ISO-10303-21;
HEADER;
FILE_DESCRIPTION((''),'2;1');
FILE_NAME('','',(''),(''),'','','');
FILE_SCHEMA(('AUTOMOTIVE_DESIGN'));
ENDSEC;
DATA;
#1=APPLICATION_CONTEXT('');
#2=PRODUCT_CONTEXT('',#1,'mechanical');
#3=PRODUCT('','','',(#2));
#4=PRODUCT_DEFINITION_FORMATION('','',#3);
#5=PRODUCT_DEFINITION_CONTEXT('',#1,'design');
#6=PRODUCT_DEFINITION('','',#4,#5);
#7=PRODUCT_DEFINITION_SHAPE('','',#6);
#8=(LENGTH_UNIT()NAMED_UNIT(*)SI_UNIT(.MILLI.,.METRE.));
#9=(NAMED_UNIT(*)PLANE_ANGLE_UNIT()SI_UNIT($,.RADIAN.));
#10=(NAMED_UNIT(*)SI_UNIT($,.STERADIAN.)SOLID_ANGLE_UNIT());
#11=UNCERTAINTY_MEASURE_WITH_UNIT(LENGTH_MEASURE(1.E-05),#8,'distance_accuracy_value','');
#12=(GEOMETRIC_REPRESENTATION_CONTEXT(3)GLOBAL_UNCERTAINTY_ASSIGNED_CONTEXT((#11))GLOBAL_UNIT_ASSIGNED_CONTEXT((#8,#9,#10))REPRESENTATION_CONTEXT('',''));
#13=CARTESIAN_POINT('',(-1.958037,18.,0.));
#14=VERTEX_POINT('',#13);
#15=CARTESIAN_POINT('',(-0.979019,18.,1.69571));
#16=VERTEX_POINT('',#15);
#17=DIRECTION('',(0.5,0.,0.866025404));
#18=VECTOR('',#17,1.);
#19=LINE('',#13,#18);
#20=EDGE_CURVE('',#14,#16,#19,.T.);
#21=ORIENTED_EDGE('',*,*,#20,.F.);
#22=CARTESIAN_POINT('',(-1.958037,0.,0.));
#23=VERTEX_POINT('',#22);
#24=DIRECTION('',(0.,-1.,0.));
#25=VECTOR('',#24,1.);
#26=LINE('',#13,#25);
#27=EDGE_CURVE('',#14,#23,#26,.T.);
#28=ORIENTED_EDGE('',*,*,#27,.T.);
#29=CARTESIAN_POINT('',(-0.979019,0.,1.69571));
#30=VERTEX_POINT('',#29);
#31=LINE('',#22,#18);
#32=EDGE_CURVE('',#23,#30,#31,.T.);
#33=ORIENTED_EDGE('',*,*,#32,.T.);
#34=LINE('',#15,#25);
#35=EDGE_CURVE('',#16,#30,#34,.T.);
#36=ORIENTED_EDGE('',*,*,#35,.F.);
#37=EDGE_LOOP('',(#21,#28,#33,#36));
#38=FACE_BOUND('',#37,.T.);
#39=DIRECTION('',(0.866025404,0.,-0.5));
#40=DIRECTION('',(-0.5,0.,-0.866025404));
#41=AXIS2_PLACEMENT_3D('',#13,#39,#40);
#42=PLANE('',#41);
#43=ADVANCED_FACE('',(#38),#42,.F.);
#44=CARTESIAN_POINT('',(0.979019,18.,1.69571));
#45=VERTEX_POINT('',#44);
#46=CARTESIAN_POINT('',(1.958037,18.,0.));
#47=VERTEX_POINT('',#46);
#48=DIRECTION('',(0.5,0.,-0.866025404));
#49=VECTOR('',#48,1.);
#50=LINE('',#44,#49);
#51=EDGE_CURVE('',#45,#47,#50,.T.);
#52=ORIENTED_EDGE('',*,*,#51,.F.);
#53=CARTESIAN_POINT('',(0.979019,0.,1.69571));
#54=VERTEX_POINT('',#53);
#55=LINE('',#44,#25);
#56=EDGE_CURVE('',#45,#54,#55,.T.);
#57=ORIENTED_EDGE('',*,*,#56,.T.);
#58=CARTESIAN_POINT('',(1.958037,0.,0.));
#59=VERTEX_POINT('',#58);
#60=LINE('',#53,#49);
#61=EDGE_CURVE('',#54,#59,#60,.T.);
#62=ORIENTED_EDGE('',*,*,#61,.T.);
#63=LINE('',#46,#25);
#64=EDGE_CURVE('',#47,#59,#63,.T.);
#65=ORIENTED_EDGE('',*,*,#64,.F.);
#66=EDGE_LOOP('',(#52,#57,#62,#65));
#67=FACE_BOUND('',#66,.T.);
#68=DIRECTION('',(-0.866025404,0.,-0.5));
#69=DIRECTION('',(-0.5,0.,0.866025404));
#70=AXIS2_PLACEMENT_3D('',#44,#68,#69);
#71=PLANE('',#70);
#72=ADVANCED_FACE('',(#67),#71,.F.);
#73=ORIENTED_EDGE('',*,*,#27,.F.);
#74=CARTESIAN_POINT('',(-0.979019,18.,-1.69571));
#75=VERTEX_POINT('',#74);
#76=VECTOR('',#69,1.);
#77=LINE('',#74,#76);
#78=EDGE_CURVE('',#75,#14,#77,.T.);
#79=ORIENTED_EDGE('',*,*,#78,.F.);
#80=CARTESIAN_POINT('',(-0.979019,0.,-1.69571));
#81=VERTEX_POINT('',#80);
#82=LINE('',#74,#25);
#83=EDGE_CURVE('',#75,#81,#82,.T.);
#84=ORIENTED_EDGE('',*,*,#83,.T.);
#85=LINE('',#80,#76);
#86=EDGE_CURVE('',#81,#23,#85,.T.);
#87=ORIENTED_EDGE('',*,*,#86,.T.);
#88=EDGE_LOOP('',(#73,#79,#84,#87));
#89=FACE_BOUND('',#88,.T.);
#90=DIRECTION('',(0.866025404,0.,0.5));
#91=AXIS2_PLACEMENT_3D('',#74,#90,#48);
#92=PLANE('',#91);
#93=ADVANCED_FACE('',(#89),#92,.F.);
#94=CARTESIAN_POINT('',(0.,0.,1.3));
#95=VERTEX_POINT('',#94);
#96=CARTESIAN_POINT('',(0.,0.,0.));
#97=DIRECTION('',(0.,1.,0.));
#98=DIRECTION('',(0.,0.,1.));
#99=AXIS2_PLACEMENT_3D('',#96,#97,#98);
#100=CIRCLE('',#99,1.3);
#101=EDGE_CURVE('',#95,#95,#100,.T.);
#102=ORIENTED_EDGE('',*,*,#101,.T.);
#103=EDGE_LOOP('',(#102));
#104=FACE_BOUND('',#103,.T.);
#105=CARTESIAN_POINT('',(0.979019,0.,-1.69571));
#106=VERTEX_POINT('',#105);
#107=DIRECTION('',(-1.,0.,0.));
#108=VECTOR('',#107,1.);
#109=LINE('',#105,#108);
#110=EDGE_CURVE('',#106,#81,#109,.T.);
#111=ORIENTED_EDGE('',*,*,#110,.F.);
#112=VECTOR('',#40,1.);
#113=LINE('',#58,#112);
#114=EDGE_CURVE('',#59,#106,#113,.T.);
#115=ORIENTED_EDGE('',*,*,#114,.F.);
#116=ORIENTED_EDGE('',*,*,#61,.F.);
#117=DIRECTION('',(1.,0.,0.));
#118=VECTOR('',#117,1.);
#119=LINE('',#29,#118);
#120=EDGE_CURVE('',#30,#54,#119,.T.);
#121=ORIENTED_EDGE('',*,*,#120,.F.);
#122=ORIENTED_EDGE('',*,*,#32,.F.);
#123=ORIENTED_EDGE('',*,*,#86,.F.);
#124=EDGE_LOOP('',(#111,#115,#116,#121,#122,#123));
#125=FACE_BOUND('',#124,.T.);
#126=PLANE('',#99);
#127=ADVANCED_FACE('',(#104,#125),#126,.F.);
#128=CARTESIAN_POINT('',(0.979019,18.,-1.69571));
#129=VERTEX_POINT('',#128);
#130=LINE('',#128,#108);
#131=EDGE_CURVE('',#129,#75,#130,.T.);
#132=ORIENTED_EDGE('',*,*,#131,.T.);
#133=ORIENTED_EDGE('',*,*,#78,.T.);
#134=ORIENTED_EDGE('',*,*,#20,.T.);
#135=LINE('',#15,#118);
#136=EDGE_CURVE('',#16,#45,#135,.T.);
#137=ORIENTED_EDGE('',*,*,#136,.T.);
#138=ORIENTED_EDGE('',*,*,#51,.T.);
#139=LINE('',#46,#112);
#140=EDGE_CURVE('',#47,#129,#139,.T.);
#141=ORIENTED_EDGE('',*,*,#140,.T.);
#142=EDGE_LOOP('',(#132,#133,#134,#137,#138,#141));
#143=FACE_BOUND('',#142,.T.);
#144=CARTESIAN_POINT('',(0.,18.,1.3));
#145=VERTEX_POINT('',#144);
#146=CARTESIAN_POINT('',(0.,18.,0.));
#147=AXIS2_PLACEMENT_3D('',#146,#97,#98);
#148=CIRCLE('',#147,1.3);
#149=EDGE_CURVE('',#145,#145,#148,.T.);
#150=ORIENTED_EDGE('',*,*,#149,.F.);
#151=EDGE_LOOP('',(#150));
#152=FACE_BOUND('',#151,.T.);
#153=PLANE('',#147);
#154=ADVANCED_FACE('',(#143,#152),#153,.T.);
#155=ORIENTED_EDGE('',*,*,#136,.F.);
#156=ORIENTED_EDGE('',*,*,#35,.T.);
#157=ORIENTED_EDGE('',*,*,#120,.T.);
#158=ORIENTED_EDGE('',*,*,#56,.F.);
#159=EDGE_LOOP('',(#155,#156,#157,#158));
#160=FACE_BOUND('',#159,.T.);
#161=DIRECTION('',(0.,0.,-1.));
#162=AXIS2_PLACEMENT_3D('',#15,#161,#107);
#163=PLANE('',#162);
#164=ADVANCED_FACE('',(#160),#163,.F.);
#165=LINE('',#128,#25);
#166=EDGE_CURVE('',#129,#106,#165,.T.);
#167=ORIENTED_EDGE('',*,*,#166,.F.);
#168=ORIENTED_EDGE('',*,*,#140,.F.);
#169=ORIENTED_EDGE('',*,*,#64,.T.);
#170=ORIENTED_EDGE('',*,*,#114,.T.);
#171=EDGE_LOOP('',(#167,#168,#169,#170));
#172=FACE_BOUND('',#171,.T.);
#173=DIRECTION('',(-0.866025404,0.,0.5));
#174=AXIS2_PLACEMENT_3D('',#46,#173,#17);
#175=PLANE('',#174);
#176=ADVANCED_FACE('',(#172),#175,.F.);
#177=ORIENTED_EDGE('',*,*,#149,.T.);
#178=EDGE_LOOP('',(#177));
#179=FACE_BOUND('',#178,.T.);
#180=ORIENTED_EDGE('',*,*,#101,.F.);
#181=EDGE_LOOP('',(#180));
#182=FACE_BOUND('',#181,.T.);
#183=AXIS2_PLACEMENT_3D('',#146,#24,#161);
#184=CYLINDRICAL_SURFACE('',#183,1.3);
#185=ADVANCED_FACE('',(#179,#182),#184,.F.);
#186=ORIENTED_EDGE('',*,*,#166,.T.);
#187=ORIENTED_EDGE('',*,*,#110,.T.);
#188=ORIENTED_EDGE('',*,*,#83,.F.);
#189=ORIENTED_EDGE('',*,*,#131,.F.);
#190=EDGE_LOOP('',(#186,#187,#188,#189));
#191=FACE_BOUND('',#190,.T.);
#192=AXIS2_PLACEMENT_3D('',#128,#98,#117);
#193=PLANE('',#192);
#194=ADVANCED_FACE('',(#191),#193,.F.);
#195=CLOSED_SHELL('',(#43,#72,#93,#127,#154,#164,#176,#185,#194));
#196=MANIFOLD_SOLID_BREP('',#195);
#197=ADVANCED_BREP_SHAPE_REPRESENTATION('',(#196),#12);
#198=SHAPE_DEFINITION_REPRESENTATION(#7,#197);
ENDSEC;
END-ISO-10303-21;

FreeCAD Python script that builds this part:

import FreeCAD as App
import Part
import Sketcher
from FreeCAD import Vector
Q = App.Units.Quantity


def add_polygon(sketch, points):
    """Adds a closed chain of lines whose ends are joined by coincident constraints."""
    first, n = sketch.GeometryCount, len(points)
    for a, b in zip(points, points[1:] + points[:1]):
        sketch.addGeometry(Part.LineSegment(App.Vector(*a, 0), App.Vector(*b, 0)), False)
    for i in range(n):
        sketch.addConstraint(Sketcher.Constraint("Coincident", first + i, 2, first + (i + 1) % n, 1))

doc = App.newDocument("Part")
params = doc.addObject("Spreadsheet::Sheet", "Params")
for row, (alias, value) in enumerate([
    ("sketch1_diameter", "2.6 mm"),
    ("pad1_length", "18 mm"),
], start=1):
    params.set(f"A{row}", alias)
    params.set(f"B{row}", "=" + value)
    params.setAlias(f"B{row}", alias)

body = doc.addObject("PartDesign::Body", "Body")

# Sketch on XZ plane
sketch1 = body.newObject("Sketcher::SketchObject", "Sketch")
sketch1.AttachmentSupport = (doc.getObject("XZ_Plane"), [""])
sketch1.MapMode = "FlatFace"
add_polygon(sketch1, [(1, 1.7), (2, 0), (1, -1.7), (-1, -1.7), (-2, 0), (-1, 1.7)])  # lines 0-5
sketch1.addGeometry(Part.Circle(Vector(0, 0, 0), Vector(0, 0, 1), 1.3), False)  # 6
sketch1.addConstraint([
    Sketcher.Constraint("Horizontal", 2),
    Sketcher.Constraint("Horizontal", 5),
    Sketcher.Constraint("Coincident", 6, 3, -1, 1),
    Sketcher.Constraint("Symmetric", 0, 2, 3, 2, -1, 1),
    Sketcher.Constraint("Symmetric", 1, 2, 4, 2, -1, 1),
    Sketcher.Constraint("PointOnObject", 0, 2, -1),
    Sketcher.Constraint("Parallel", 0, 3),
    Sketcher.Constraint("Vertical", 2, 2, 4, 2),
    Sketcher.Constraint("Diameter", 6, Q("2.6 mm")),
    Sketcher.Constraint("Angle", 0, Q("-60 deg")),
    Sketcher.Constraint("DistanceX", 2, 2, 2, 1, Q("1.958037 mm")),
    Sketcher.Constraint("DistanceY", 1, 2, -1, 1, Q("1.69571 mm")),
])
sketch1.setExpression("Constraints[14]", "Params.sketch1_diameter")
pad1 = body.newObject("PartDesign::Pad", "Pad")
pad1.Profile = sketch1
pad1.setExpression("Length", "Params.pad1_length")
pad1.Reversed = True

doc.recompute()
